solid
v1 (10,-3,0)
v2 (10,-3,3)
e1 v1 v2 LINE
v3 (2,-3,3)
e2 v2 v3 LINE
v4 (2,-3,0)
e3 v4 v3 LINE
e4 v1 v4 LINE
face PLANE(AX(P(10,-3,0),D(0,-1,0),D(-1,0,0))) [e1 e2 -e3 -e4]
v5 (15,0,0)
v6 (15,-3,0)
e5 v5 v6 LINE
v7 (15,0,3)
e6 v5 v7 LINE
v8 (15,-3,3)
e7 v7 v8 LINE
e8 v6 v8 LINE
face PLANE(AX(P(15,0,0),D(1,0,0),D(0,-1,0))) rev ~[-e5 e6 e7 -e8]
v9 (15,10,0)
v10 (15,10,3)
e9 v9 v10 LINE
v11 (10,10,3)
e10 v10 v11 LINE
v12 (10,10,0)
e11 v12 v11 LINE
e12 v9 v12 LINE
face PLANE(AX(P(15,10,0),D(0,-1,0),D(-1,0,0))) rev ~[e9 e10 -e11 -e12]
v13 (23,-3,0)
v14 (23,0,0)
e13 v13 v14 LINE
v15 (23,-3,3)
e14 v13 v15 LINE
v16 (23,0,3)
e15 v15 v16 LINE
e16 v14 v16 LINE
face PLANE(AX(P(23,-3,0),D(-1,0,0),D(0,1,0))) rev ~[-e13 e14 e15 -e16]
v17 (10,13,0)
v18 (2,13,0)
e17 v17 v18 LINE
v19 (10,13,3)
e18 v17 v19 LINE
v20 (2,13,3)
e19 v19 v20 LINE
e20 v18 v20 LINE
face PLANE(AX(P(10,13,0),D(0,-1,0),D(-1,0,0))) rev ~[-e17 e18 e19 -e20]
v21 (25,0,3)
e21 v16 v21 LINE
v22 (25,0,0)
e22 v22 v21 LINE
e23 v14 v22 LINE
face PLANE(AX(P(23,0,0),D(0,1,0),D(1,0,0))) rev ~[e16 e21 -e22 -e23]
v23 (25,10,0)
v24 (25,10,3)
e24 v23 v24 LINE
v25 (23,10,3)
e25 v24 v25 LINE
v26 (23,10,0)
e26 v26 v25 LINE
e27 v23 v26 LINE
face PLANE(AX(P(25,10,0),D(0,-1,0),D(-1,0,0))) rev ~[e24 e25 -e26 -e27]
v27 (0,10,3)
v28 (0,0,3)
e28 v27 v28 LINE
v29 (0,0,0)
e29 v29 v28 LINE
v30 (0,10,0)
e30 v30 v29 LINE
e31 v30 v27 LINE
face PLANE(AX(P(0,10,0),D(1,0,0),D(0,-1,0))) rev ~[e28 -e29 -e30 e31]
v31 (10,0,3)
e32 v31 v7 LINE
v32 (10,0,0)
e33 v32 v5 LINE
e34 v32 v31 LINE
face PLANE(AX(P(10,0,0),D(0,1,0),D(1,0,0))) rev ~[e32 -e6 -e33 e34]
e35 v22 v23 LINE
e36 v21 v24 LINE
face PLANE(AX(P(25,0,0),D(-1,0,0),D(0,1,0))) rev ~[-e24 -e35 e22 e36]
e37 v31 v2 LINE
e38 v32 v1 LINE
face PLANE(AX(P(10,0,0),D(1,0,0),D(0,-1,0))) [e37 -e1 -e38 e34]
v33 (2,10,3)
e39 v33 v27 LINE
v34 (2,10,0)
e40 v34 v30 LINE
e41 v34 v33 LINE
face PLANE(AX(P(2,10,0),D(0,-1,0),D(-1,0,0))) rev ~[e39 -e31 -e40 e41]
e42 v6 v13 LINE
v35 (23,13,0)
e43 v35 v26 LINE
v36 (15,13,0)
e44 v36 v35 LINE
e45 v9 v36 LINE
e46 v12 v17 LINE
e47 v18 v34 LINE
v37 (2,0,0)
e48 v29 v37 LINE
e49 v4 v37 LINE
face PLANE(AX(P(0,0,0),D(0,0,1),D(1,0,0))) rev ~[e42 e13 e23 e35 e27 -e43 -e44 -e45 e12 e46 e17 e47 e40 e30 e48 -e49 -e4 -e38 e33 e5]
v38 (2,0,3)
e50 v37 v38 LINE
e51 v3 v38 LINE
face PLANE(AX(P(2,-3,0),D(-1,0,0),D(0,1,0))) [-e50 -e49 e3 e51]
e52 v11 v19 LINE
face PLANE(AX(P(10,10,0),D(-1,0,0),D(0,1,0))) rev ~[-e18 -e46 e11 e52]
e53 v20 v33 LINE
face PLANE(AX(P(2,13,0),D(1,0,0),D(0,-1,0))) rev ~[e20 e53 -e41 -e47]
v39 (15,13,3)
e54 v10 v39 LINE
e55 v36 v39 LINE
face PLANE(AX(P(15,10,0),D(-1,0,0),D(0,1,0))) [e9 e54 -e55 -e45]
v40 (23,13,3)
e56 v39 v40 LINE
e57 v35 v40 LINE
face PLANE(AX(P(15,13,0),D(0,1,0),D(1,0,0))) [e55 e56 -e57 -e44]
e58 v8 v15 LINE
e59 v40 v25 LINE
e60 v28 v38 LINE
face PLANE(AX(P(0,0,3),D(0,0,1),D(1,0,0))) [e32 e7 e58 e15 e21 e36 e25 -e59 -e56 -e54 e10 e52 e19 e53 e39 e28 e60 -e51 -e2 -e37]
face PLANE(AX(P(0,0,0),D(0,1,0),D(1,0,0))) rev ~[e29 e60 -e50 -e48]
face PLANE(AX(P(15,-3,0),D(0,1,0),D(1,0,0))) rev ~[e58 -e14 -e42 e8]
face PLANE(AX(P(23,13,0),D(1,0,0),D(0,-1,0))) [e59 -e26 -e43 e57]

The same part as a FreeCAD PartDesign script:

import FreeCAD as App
import Part
import Sketcher

doc = App.newDocument("Part")
body = doc.addObject("PartDesign::Body", "Body")

sketch1 = body.newObject("Sketcher::SketchObject", "Sketch")
sketch1.AttachmentSupport = (doc.getObject("XY_Plane"), [""])
sketch1.MapMode = "FlatFace"
sketch1.addGeometry([
    Part.LineSegment(App.Vector(0, 10, 0), App.Vector(0, 0, 0)),
    Part.LineSegment(App.Vector(0, 0, 0), App.Vector(2, 0, 0)),
    Part.LineSegment(App.Vector(2, 0, 0), App.Vector(2, -3, 0)),
    Part.LineSegment(App.Vector(2, -3, 0), App.Vector(10, -3, 0)),
    Part.LineSegment(App.Vector(10, -3, 0), App.Vector(10, 0, 0)),
    Part.LineSegment(App.Vector(10, 0, 0), App.Vector(15, 0, 0)),
    Part.LineSegment(App.Vector(15, 0, 0), App.Vector(15, -3, 0)),
    Part.LineSegment(App.Vector(15, -3, 0), App.Vector(23, -3, 0)),
    Part.LineSegment(App.Vector(23, -3, 0), App.Vector(23, 0, 0)),
    Part.LineSegment(App.Vector(23, 0, 0), App.Vector(25, 0, 0)),
    Part.LineSegment(App.Vector(25, 0, 0), App.Vector(25, 10, 0)),
    Part.LineSegment(App.Vector(25, 10, 0), App.Vector(23, 10, 0)),
    Part.LineSegment(App.Vector(23, 10, 0), App.Vector(23, 13, 0)),
    Part.LineSegment(App.Vector(23, 13, 0), App.Vector(15, 13, 0)),
    Part.LineSegment(App.Vector(15, 13, 0), App.Vector(15, 10, 0)),
    Part.LineSegment(App.Vector(15, 10, 0), App.Vector(10, 10, 0)),
    Part.LineSegment(App.Vector(10, 10, 0), App.Vector(10, 13, 0)),
    Part.LineSegment(App.Vector(10, 13, 0), App.Vector(2, 13, 0)),
    Part.LineSegment(App.Vector(2, 13, 0), App.Vector(2, 10, 0)),
    Part.LineSegment(App.Vector(2, 10, 0), App.Vector(0, 10, 0)),
], False)
sketch1.addConstraint([
    Sketcher.Constraint("Coincident", 0, 2, 1, 1),
    Sketcher.Constraint("Coincident", 1, 2, 2, 1),
    Sketcher.Constraint("Coincident", 2, 2, 3, 1),
    Sketcher.Constraint("Coincident", 3, 2, 4, 1),
    Sketcher.Constraint("Coincident", 4, 2, 5, 1),
    Sketcher.Constraint("Coincident", 5, 2, 6, 1),
    Sketcher.Constraint("Coincident", 6, 2, 7, 1),
    Sketcher.Constraint("Coincident", 7, 2, 8, 1),
    Sketcher.Constraint("Coincident", 8, 2, 9, 1),
    Sketcher.Constraint("Coincident", 9, 2, 10, 1),
    Sketcher.Constraint("Coincident", 10, 2, 11, 1),
    Sketcher.Constraint("Coincident", 11, 2, 12, 1),
    Sketcher.Constraint("Coincident", 12, 2, 13, 1),
    Sketcher.Constraint("Coincident", 13, 2, 14, 1),
    Sketcher.Constraint("Coincident", 14, 2, 15, 1),
    Sketcher.Constraint("Coincident", 15, 2, 16, 1),
    Sketcher.Constraint("Coincident", 16, 2, 17, 1),
    Sketcher.Constraint("Coincident", 17, 2, 18, 1),
    Sketcher.Constraint("Coincident", 18, 2, 19, 1),
    Sketcher.Constraint("Coincident", 19, 2, 0, 1),
    Sketcher.Constraint("Vertical", 0),
    Sketcher.Constraint("Horizontal", 1),
    Sketcher.Constraint("Vertical", 2),
    Sketcher.Constraint("Horizontal", 3),
    Sketcher.Constraint("Vertical", 4),
    Sketcher.Constraint("Horizontal", 5),
    Sketcher.Constraint("Vertical", 6),
    Sketcher.Constraint("Horizontal", 7),
    Sketcher.Constraint("Vertical", 8),
    Sketcher.Constraint("Horizontal", 9),
    Sketcher.Constraint("Vertical", 10),
    Sketcher.Constraint("Horizontal", 11),
    Sketcher.Constraint("Vertical", 12),
    Sketcher.Constraint("Horizontal", 13),
    Sketcher.Constraint("Vertical", 14),
    Sketcher.Constraint("Horizontal", 15),
    Sketcher.Constraint("Vertical", 16),
    Sketcher.Constraint("Horizontal", 17),
    Sketcher.Constraint("Vertical", 18),
    Sketcher.Constraint("Horizontal", 19),
    Sketcher.Constraint("Coincident", 0, 2, -1, 1),
    Sketcher.Constraint("PointOnObject", 4, 2, -1),
    Sketcher.Constraint("PointOnObject", 8, 2, -1),
    Sketcher.Constraint("Horizontal", 3, 2, 6, 2),
    Sketcher.Constraint("Horizontal", 11, 2, 14, 2),
    Sketcher.Constraint("Horizontal", 13, 2, 16, 2),
    Sketcher.Constraint("Horizontal", 15, 2, 18, 2),
    Sketcher.Constraint("Vertical", 8, 2, 11, 2),
    Sketcher.Constraint("Vertical", 6, 2, 13, 2),
    Sketcher.Constraint("Vertical", 4, 2, 15, 2),
    Sketcher.Constraint("Vertical", 2, 2, 17, 2),
    Sketcher.Constraint("Equal", 3, 7),
    Sketcher.Constraint("Equal", 1, 9),
    Sketcher.Constraint("Equal", 8, 12),
    Sketcher.Constraint("DistanceX", 1, 1, 1, 2, 2.0),
    Sketcher.Constraint("DistanceX", 3, 1, 3, 2, 8.0),
    Sketcher.Constraint("DistanceY", 0, 2, 0, 1, 10.0),
    Sketcher.Constraint("DistanceY", 2, 2, 2, 1, 3.0),
    Sketcher.Constraint("DistanceX", -1, 1, 9, 2, 25.0),
])
pad1 = body.newObject("PartDesign::Pad", "Pad")
pad1.Profile = sketch1
pad1.Length = 3

doc.recompute()
